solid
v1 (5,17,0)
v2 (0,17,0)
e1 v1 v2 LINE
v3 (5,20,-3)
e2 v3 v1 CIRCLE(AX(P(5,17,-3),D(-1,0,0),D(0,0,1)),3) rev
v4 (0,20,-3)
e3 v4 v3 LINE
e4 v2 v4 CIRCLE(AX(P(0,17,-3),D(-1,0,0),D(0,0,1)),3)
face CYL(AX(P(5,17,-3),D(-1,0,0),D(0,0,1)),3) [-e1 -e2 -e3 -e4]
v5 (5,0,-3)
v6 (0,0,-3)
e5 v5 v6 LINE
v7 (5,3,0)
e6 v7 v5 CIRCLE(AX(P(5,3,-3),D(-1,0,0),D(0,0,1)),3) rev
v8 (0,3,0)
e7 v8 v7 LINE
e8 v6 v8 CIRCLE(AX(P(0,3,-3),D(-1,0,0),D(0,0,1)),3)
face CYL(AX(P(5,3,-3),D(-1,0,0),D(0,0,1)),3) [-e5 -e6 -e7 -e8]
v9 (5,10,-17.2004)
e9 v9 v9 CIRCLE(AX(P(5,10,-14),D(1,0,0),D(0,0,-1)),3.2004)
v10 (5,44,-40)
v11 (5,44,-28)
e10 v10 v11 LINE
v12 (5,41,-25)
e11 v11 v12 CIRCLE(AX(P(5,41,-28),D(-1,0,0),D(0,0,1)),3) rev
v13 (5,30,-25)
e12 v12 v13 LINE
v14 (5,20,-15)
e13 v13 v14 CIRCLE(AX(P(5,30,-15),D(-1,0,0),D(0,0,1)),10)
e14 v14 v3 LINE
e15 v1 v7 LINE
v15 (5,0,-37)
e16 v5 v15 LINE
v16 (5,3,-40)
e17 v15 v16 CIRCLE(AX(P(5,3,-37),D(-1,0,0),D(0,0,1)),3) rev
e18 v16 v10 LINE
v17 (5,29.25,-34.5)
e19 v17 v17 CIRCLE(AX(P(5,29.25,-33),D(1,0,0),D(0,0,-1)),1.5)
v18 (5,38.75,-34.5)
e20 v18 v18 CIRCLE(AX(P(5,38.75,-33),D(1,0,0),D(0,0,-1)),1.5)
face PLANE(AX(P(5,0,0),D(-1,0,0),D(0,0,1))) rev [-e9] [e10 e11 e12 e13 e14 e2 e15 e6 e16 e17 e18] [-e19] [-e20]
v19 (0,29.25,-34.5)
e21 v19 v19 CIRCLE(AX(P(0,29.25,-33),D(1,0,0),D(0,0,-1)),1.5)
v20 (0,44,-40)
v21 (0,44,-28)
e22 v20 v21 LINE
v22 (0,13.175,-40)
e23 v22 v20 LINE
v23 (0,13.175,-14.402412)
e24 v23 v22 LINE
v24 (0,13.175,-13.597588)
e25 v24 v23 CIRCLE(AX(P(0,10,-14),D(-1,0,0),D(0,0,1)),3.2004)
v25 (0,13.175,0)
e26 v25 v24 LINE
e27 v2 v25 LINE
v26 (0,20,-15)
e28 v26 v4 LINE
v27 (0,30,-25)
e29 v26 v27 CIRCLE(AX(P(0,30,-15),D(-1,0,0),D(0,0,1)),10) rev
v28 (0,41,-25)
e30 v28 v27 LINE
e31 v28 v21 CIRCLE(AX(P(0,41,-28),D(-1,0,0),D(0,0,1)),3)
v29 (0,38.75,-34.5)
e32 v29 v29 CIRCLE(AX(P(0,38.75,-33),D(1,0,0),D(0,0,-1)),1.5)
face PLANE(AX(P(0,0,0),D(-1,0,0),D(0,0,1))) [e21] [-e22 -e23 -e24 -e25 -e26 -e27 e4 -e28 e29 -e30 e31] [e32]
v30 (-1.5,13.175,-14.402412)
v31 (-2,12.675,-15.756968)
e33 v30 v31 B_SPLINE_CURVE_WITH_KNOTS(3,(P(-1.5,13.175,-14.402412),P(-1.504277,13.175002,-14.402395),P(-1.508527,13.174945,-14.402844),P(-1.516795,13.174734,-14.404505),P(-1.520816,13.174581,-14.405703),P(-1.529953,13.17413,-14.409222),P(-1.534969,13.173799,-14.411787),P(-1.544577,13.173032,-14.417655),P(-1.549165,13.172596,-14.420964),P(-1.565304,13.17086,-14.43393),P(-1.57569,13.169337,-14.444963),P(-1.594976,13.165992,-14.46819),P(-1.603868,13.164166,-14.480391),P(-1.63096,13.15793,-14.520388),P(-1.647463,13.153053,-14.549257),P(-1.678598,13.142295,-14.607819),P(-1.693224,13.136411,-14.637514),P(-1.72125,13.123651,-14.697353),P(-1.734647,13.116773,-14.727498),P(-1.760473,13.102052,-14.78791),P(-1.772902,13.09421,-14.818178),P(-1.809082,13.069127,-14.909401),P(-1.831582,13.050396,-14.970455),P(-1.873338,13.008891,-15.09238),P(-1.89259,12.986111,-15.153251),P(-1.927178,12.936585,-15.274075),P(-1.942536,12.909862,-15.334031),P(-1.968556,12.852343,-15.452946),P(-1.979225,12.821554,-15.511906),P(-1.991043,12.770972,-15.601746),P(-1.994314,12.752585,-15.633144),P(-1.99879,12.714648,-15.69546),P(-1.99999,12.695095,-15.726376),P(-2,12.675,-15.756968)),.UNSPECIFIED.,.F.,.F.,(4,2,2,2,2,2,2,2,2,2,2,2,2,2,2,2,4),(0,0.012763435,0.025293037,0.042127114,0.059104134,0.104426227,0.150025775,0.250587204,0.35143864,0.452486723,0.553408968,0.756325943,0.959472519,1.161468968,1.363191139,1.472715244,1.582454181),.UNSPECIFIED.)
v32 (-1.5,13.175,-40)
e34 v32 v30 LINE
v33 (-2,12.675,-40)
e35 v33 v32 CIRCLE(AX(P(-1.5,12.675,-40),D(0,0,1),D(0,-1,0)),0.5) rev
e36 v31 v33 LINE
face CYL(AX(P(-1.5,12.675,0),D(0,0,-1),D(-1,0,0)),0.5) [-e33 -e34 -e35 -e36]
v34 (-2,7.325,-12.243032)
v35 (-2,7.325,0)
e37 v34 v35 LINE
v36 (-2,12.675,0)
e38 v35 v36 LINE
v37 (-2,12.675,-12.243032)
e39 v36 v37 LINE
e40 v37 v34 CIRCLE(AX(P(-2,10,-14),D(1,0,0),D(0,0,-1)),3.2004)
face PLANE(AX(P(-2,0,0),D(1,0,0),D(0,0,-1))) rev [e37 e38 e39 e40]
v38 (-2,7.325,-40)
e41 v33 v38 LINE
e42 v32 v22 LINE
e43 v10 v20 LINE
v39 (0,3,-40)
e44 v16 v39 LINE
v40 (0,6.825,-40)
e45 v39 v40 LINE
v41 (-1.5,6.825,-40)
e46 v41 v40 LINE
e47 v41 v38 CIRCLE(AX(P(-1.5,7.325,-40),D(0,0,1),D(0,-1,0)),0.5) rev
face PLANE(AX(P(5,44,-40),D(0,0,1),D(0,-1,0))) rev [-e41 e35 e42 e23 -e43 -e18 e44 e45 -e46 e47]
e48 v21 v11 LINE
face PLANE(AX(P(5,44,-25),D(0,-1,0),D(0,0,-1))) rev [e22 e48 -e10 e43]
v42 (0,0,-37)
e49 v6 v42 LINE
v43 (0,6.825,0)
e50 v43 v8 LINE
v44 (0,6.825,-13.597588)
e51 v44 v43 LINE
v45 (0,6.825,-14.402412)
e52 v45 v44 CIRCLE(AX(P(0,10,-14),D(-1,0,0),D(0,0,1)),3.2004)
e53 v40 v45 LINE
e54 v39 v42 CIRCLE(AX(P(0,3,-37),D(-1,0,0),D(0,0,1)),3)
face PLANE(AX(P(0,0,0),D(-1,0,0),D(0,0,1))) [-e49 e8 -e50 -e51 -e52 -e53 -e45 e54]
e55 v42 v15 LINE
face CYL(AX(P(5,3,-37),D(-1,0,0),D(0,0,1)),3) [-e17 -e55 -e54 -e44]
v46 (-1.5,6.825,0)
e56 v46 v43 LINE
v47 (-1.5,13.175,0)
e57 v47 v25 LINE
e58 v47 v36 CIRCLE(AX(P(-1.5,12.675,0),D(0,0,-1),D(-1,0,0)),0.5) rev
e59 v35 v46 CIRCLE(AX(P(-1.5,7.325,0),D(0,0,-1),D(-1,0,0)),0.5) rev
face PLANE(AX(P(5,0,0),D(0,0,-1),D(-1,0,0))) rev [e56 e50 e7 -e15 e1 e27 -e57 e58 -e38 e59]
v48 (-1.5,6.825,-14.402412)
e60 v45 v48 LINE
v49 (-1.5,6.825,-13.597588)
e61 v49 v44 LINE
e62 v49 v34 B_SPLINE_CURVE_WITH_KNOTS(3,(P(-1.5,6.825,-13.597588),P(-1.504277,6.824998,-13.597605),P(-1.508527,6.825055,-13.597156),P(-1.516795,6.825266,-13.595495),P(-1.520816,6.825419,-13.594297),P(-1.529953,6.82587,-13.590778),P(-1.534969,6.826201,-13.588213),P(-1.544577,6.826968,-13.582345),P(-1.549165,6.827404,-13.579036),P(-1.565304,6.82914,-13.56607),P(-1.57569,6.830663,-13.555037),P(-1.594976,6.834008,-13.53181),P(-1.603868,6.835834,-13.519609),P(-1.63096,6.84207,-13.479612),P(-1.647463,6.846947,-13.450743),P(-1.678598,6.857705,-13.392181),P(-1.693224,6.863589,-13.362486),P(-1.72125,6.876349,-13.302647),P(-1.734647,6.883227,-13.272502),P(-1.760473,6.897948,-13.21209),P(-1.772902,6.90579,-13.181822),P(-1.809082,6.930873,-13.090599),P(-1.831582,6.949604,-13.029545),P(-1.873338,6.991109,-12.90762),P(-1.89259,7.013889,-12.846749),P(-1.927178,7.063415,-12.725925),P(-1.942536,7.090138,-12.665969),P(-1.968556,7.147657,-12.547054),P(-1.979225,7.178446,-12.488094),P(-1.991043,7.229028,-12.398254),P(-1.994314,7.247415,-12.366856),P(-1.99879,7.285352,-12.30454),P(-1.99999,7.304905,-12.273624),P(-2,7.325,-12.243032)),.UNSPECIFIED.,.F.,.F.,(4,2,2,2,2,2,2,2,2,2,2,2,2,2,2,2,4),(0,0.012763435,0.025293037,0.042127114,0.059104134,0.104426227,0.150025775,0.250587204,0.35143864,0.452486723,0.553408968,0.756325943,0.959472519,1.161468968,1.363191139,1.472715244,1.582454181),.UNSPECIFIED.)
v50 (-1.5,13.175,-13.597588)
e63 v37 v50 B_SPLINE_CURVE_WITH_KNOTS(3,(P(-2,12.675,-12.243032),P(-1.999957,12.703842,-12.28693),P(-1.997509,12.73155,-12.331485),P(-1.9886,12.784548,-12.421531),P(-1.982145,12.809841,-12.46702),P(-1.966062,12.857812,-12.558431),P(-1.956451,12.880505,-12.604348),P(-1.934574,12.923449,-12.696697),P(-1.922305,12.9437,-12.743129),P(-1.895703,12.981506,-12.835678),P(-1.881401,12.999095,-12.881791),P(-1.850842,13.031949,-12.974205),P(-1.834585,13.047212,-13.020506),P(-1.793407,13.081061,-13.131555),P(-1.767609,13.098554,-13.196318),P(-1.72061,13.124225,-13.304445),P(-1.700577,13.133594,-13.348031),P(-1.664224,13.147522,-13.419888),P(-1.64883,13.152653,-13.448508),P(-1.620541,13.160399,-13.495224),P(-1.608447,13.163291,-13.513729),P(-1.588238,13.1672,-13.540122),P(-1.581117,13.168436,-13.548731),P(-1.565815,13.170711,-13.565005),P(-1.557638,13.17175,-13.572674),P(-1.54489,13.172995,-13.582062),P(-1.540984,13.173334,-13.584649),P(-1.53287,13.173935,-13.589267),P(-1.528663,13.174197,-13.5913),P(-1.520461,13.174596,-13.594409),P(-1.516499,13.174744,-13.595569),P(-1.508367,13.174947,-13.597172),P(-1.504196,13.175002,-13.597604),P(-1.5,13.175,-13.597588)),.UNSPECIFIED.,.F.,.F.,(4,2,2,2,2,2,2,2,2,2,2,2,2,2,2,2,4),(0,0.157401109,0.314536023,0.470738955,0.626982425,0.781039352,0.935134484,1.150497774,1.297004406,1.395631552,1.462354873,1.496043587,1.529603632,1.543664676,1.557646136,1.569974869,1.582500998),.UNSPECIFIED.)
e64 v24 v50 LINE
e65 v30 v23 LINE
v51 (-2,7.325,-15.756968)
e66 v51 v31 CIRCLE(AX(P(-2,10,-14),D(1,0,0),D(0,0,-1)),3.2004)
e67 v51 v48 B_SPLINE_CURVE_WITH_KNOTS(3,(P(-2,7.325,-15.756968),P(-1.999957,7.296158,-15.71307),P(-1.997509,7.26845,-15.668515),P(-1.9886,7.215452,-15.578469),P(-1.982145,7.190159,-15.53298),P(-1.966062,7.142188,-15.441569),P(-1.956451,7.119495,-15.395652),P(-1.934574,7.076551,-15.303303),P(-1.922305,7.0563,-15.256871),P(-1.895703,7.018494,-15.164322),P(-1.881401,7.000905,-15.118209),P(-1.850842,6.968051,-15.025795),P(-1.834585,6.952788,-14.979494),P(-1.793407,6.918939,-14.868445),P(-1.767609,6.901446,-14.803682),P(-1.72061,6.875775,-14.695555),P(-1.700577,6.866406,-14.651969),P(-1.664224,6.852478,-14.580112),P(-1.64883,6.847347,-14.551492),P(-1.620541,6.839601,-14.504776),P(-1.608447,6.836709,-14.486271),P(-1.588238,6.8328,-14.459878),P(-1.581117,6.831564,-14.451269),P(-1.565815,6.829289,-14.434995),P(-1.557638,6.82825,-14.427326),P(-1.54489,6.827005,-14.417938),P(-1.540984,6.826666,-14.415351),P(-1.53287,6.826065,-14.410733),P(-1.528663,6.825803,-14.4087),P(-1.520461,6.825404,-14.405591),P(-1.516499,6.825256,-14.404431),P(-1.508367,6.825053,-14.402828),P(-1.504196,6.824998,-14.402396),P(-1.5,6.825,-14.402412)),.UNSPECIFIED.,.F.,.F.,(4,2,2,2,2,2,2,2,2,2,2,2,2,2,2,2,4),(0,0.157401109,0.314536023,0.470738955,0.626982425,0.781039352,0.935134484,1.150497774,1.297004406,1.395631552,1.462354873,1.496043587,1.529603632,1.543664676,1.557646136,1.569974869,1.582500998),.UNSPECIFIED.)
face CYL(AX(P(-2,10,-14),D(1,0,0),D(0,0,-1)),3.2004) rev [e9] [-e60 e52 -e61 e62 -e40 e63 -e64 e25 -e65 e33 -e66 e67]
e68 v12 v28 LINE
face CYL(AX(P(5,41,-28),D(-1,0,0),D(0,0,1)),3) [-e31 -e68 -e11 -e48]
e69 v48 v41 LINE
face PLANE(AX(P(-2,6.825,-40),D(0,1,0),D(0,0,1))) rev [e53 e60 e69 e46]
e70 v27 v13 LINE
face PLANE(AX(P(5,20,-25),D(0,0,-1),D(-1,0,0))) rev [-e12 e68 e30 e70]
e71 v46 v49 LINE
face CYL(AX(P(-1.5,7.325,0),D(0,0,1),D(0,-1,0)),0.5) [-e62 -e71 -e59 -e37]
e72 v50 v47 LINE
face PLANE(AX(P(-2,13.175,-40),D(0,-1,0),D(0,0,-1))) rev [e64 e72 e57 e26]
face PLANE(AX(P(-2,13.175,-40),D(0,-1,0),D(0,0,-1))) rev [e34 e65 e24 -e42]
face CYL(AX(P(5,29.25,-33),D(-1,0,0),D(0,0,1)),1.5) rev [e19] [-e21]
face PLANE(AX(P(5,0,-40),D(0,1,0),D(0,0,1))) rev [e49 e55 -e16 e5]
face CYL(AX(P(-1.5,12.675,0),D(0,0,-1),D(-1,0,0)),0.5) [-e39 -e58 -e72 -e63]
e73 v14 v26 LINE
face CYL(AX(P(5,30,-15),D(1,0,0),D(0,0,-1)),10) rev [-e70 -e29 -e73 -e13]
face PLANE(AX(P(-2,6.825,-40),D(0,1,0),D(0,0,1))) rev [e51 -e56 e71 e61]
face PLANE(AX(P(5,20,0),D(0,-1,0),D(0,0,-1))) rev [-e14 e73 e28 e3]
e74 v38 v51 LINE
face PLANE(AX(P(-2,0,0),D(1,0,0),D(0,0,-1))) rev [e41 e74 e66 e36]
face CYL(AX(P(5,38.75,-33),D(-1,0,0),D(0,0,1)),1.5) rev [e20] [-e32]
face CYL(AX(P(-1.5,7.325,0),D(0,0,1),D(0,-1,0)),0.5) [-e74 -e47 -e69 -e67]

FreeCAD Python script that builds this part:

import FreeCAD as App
import Part
import Sketcher
from FreeCAD import Vector


def edges_at(feature, points):
    """Names of the edges that pass closest to the given points."""
    edges = feature.Shape.Edges
    near = lambda p: min(range(len(edges)), key=lambda i: edges[i].distToShape(Part.Vertex(*p))[0])
    return sorted({f"Edge{near(p) + 1}" for p in points})


def add_polygon(sketch, points):
    """Adds a closed chain of lines whose ends are joined by coincident constraints."""
    first, n = sketch.GeometryCount, len(points)
    for a, b in zip(points, points[1:] + points[:1]):
        sketch.addGeometry(Part.LineSegment(App.Vector(*a, 0), App.Vector(*b, 0)), False)
    for i in range(n):
        sketch.addConstraint(Sketcher.Constraint("Coincident", first + i, 2, first + (i + 1) % n, 1))

doc = App.newDocument("Part")
body = doc.addObject("PartDesign::Body", "Body")

sketch1 = doc.addObject("Sketcher::SketchObject", "Sketch")
body.addObject(sketch1)
sketch1.AttachmentSupport = (doc.YZ_Plane, [""])
sketch1.MapMode = "FlatFace"
add_polygon(sketch1, [(20, 0), (0, 0), (0, -40), (44, -40), (44, -25), (20, -25)])
sketch1.addGeometry(Part.Circle(Vector(29.2, -33, 0), Vector(0, 0, 1), 1.5), False)
sketch1.addGeometry(Part.Circle(Vector(38.8, -33, 0), Vector(0, 0, 1), 1.5), False)
sketch1.addConstraint([
    Sketcher.Constraint("Horizontal", 0),
    Sketcher.Constraint("Vertical", 1),
    Sketcher.Constraint("Horizontal", 2),
    Sketcher.Constraint("Vertical", 3),
    Sketcher.Constraint("Horizontal", 4),
    Sketcher.Constraint("Vertical", 5),
    Sketcher.Constraint("Coincident", 0, 2, -1, 1),
    Sketcher.Constraint("Equal", 6, 7),
    Sketcher.Constraint("Horizontal", 6, 3, 7, 3),
    Sketcher.Constraint("Diameter", 6, 3.0),
    Sketcher.Constraint("DistanceX", 0, 2, 0, 1, 20.0),
    Sketcher.Constraint("DistanceX", 2, 1, 2, 2, 44.0),
    Sketcher.Constraint("DistanceY", 1, 2, 1, 1, 40.0),
    Sketcher.Constraint("DistanceY", 3, 1, 3, 2, 15.0),
    Sketcher.Constraint("DistanceY", 6, 3, -1, 1, 33.0),
    Sketcher.Constraint("DistanceX", 6, 3, 7, 3, 9.5),
    Sketcher.Constraint("DistanceX", -1, 1, 6, 3, 29.25),
])
pad1 = doc.addObject("PartDesign::Pad", "Pad")
body.addObject(pad1)
pad1.Profile = sketch1
pad1.Length = 5

sketch2 = doc.addObject("Sketcher::SketchObject", "Sketch001")
body.addObject(sketch2)
sketch2.AttachmentSupport = (doc.YZ_Plane, [""])
sketch2.MapMode = "FlatFace"
add_polygon(sketch2, [(13, -40), (7, -40), (7, 0), (13, 0)])
sketch2.addConstraint([
    Sketcher.Constraint("Horizontal", 0),
    Sketcher.Constraint("Vertical", 1),
    Sketcher.Constraint("Horizontal", 2),
    Sketcher.Constraint("Vertical", 3),
    Sketcher.Constraint("PointOnObject", 1, 2, -1),
    Sketcher.Constraint("DistanceY", 1, 1, 1, 2, 40.0),
    Sketcher.Constraint("DistanceX", 0, 2, 0, 1, 6.35),
    Sketcher.Constraint("DistanceX", -1, 1, 0, 2, 6.825),
])
pad2 = doc.addObject("PartDesign::Pad", "Pad001")
body.addObject(pad2)
pad2.Profile = sketch2
pad2.Length = 2
pad2.Reversed = True
doc.recompute()

fillet = doc.addObject("PartDesign::Fillet", "Fillet")
body.addObject(fillet)
fillet.Base = (pad2, edges_at(pad2, [(-2, 6.825, -20), (-2, 13.175, -20)]))
fillet.Radius = 0.5
doc.recompute()

fillet2 = doc.addObject("PartDesign::Fillet", "Fillet001")
body.addObject(fillet2)
fillet2.Base = (fillet, edges_at(fillet, [
    (2.5, 0, 0),
    (2.5, 20, 0),
    (2.5, 44, -25),
    (2.5, 0, -40),
]))
fillet2.Radius = 3

sketch3 = doc.addObject("Sketcher::SketchObject", "Sketch002")
body.addObject(sketch3)
sketch3.AttachmentSupport = (doc.YZ_Plane, [""])
sketch3.MapMode = "FlatFace"
sketch3.AttachmentOffset = App.Placement(Vector(0, 0, 5), App.Rotation())
sketch3.addGeometry(Part.Circle(Vector(10, -14, 0), Vector(0, 0, 1), 3.2), False)
sketch3.addConstraint([
    Sketcher.Constraint("DistanceX", -1, 1, 0, 3, 10.0),
    Sketcher.Constraint("DistanceY", 0, 3, -1, 1, 14.0),
    Sketcher.Constraint("Diameter", 0, 6.4008),
])
pocket1 = doc.addObject("PartDesign::Pocket", "Pocket")
body.addObject(pocket1)
pocket1.Profile = sketch3
pocket1.Type = "ThroughAll"
doc.recompute()

fillet3 = doc.addObject("PartDesign::Fillet", "Fillet002")
body.addObject(fillet3)
fillet3.Base = (pocket1, edges_at(pocket1, [(2.5, 20, -25)]))
fillet3.Radius = 10

doc.recompute()
